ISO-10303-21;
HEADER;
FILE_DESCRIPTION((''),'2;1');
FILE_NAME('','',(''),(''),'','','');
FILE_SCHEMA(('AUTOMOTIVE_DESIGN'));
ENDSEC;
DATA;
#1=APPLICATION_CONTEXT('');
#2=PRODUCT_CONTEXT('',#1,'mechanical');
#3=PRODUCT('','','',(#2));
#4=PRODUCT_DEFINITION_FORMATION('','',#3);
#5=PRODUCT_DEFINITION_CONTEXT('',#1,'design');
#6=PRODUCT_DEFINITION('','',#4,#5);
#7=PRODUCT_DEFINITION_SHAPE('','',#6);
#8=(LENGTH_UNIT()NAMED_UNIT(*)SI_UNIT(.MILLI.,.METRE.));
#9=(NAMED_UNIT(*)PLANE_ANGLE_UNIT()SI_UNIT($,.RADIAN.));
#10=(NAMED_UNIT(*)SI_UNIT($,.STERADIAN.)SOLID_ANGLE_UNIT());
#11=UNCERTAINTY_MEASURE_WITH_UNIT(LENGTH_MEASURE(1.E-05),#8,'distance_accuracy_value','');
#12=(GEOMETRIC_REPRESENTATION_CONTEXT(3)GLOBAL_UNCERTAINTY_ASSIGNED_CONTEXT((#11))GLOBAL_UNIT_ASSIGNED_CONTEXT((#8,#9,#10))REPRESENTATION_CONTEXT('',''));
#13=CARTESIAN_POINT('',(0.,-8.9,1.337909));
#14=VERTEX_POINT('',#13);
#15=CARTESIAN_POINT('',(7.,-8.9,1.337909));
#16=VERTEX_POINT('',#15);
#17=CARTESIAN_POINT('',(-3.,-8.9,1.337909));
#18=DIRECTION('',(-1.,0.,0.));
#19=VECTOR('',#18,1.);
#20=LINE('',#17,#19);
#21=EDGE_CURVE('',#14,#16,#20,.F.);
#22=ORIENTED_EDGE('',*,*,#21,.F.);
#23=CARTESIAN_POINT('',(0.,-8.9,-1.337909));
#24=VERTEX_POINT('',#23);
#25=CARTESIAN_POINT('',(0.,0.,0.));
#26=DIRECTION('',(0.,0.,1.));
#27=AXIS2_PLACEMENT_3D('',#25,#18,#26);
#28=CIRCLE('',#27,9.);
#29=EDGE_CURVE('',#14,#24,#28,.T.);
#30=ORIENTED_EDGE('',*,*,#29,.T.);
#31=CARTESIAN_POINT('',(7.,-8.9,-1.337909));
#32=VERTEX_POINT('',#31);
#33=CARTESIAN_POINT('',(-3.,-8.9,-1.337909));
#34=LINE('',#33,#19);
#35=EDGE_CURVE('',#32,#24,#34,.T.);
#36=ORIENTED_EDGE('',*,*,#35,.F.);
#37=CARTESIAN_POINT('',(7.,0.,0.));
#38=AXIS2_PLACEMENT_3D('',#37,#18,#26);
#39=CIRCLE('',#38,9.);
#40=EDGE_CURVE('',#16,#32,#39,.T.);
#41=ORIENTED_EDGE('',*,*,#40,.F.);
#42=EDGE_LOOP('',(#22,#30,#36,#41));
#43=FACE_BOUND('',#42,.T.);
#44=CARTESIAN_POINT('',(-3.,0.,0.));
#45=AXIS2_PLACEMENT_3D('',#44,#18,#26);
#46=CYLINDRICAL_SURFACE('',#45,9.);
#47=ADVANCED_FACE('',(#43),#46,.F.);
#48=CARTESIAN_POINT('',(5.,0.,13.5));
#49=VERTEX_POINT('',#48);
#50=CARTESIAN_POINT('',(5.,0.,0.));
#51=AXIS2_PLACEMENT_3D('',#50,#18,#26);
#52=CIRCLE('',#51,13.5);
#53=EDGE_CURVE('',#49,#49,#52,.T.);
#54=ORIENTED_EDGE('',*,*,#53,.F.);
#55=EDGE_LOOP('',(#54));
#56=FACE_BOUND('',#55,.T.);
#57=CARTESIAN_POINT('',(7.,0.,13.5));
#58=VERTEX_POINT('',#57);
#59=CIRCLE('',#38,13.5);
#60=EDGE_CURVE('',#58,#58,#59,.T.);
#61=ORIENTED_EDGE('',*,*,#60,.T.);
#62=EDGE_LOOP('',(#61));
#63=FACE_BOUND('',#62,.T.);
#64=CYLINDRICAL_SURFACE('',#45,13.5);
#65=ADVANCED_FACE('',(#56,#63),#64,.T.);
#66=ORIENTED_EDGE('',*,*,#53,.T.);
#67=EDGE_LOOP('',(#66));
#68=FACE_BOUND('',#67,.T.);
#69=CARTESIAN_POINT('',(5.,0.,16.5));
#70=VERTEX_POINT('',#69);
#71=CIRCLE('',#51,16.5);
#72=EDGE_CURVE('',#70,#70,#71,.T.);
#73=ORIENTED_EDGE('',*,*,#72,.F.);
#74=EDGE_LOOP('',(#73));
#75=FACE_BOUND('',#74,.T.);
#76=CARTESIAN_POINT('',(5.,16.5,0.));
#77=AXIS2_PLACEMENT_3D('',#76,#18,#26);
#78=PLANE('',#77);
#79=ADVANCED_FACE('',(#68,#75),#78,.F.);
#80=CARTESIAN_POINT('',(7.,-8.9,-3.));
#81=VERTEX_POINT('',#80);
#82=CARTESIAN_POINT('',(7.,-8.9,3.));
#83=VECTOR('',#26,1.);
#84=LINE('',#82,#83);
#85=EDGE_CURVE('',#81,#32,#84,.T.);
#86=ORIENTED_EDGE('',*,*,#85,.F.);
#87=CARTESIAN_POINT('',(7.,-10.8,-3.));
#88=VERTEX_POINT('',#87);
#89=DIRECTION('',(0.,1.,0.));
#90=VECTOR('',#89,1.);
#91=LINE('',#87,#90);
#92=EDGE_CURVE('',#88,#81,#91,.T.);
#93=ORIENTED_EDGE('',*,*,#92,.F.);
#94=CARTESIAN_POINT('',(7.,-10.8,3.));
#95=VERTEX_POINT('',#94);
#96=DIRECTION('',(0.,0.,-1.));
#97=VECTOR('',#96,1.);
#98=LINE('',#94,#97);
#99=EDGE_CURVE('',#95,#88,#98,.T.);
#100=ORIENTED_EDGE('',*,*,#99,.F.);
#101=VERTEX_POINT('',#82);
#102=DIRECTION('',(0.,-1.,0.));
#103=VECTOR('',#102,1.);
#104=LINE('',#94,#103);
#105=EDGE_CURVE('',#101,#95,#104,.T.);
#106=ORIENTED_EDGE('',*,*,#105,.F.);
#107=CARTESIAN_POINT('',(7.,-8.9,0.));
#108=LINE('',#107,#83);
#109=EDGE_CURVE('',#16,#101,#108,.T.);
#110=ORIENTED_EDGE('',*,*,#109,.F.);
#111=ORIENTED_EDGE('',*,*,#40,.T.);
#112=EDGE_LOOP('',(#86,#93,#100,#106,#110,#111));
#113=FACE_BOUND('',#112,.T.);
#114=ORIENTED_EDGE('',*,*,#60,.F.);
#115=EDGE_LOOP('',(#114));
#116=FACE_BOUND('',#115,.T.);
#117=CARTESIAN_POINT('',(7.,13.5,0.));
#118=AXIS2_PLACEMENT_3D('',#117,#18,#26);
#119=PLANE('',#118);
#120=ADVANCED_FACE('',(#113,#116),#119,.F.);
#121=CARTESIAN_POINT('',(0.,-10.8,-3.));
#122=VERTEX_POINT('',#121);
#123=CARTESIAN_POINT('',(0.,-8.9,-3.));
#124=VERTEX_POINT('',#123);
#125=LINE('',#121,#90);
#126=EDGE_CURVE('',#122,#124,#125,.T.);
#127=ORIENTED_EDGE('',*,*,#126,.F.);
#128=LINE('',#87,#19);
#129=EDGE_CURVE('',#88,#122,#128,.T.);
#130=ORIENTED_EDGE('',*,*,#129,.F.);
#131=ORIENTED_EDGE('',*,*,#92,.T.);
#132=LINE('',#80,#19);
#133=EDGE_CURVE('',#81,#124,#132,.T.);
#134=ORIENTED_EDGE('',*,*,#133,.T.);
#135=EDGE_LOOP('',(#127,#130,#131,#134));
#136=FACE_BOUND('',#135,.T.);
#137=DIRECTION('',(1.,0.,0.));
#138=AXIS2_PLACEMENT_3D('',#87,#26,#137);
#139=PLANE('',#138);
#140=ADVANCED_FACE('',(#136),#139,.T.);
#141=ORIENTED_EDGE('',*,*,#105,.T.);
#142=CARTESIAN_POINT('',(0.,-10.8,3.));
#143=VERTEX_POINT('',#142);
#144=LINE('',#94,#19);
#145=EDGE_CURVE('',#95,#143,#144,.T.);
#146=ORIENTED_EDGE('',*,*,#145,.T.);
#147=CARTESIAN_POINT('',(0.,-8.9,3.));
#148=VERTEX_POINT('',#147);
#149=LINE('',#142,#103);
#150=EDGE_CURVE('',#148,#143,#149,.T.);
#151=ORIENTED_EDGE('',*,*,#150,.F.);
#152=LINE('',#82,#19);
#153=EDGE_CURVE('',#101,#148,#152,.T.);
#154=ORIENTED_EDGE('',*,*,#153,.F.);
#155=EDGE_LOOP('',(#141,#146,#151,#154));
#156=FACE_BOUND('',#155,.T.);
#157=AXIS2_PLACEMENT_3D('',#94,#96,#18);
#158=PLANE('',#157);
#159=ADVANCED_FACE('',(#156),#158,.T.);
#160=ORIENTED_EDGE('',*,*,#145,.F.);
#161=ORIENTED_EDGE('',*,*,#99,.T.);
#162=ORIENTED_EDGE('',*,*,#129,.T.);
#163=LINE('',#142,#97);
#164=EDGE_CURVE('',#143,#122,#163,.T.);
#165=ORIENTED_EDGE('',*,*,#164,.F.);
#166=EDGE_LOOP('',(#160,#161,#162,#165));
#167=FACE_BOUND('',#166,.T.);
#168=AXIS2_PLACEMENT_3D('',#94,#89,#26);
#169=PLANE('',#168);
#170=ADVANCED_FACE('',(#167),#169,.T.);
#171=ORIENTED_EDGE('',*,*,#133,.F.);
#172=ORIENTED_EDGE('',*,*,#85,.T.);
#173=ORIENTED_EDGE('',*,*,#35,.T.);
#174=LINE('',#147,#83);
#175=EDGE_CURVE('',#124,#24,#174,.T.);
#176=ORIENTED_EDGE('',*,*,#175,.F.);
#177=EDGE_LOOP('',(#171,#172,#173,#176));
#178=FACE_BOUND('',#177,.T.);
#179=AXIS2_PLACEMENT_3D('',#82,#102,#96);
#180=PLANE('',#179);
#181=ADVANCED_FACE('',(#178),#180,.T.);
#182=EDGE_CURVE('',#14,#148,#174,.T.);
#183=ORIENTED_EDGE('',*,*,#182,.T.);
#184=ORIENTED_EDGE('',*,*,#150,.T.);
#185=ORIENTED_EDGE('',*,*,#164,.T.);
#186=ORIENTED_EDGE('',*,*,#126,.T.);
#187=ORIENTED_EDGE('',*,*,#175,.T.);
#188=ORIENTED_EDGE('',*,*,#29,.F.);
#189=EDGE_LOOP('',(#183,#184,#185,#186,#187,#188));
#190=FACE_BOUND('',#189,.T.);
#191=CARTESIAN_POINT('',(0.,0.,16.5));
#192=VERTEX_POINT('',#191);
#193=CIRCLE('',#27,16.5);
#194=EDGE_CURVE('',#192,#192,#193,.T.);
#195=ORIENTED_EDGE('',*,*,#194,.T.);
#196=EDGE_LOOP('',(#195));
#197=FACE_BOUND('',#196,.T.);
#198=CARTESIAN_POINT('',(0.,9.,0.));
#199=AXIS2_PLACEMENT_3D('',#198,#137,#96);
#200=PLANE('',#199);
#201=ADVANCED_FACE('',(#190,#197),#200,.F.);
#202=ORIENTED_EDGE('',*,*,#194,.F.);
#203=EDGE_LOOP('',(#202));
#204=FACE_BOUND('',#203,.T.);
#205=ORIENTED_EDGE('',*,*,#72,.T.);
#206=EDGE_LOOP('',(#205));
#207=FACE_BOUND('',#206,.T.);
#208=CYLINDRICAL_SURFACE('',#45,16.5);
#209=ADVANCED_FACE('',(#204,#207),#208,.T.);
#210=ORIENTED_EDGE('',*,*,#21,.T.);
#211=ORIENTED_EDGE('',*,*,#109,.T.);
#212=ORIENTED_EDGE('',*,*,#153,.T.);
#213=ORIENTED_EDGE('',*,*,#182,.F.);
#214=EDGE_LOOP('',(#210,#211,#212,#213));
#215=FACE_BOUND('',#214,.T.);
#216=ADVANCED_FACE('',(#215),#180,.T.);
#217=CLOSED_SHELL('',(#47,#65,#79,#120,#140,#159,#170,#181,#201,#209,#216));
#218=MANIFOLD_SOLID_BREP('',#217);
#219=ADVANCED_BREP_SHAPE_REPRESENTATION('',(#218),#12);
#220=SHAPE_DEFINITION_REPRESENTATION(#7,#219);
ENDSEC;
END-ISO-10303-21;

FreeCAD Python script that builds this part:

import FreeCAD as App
import Part
import Sketcher
from FreeCAD import Vector
Q = App.Units.Quantity

doc = App.newDocument("Part")
body = doc.addObject("PartDesign::Body", "Body")

# Sketch on XY plane
sketch1 = body.newObject("Sketcher::SketchObject", "Sketch")
sketch1.AttachmentSupport = (doc.getObject("XY_Plane"), [""])
sketch1.MapMode = "FlatFace"
sketch1.addGeometry(Part.LineSegment(Vector(0, 16.5, 0), Vector(0, 9, 0)), False)
sketch1.addGeometry(Part.LineSegment(Vector(0, 9, 0), Vector(7, 9, 0)), False)
sketch1.addGeometry(Part.LineSegment(Vector(7, 9, 0), Vector(7, 13.5, 0)), False)
sketch1.addGeometry(Part.LineSegment(Vector(7, 13.5, 0), Vector(5, 13.5, 0)), False)
sketch1.addGeometry(Part.LineSegment(Vector(5, 13.5, 0), Vector(5, 16.5, 0)), False)
sketch1.addGeometry(Part.LineSegment(Vector(5, 16.5, 0), Vector(0, 16.5, 0)), False)
sketch1.addConstraint(Sketcher.Constraint("Coincident", 0, 2, 1, 1))
sketch1.addConstraint(Sketcher.Constraint("Coincident", 1, 2, 2, 1))
sketch1.addConstraint(Sketcher.Constraint("Coincident", 2, 2, 3, 1))
sketch1.addConstraint(Sketcher.Constraint("Coincident", 3, 2, 4, 1))
sketch1.addConstraint(Sketcher.Constraint("Coincident", 4, 2, 5, 1))
sketch1.addConstraint(Sketcher.Constraint("Coincident", 5, 2, 0, 1))
sketch1.addConstraint(Sketcher.Constraint("Vertical", 0))
sketch1.addConstraint(Sketcher.Constraint("Horizontal", 1))
sketch1.addConstraint(Sketcher.Constraint("Vertical", 2))
sketch1.addConstraint(Sketcher.Constraint("Horizontal", 3))
sketch1.addConstraint(Sketcher.Constraint("Vertical", 4))
sketch1.addConstraint(Sketcher.Constraint("Horizontal", 5))
sketch1.addConstraint(Sketcher.Constraint("PointOnObject", 0, 2, -2))
sketch1.addConstraint(Sketcher.Constraint("DistanceX", 1, 1, 1, 2, Q("7 mm")))
sketch1.addConstraint(Sketcher.Constraint("DistanceX", 3, 2, 3, 1, Q("2 mm")))
sketch1.addConstraint(Sketcher.Constraint("DistanceY", 4, 1, 4, 2, Q("3 mm")))
sketch1.addConstraint(Sketcher.Constraint("DistanceY", 0, 2, 0, 1, Q("7.5 mm")))
sketch1.addConstraint(Sketcher.Constraint("DistanceY", -1, 1, 0, 2, Q("9 mm")))
revolution = body.newObject("PartDesign::Revolution", "Revolution")
revolution.Profile = sketch1
revolution.ReferenceAxis = (sketch1, ["H_Axis"])
revolution.Angle = 360

# Sketch on YZ plane
sketch2 = body.newObject("Sketcher::SketchObject", "Sketch001")
sketch2.AttachmentSupport = (doc.getObject("YZ_Plane"), [""])
sketch2.MapMode = "FlatFace"
sketch2.addGeometry(Part.LineSegment(Vector(-8.9, 3, 0), Vector(-10.8, 3, 0)), False)
sketch2.addGeometry(Part.LineSegment(Vector(-10.8, 3, 0), Vector(-10.8, -3, 0)), False)
sketch2.addGeometry(Part.LineSegment(Vector(-10.8, -3, 0), Vector(-8.9, -3, 0)), False)
sketch2.addGeometry(Part.LineSegment(Vector(-8.9, -3, 0), Vector(-8.9, 3, 0)), False)
sketch2.addConstraint(Sketcher.Constraint("Coincident", 0, 2, 1, 1))
sketch2.addConstraint(Sketcher.Constraint("Coincident", 1, 2, 2, 1))
sketch2.addConstraint(Sketcher.Constraint("Coincident", 2, 2, 3, 1))
sketch2.addConstraint(Sketcher.Constraint("Coincident", 3, 2, 0, 1))
sketch2.addConstraint(Sketcher.Constraint("Horizontal", 0))
sketch2.addConstraint(Sketcher.Constraint("Vertical", 1))
sketch2.addConstraint(Sketcher.Constraint("Horizontal", 2))
sketch2.addConstraint(Sketcher.Constraint("Vertical", 3))
sketch2.addConstraint(Sketcher.Constraint("DistanceY", 1, 2, 1, 1, Q("6 mm")))
sketch2.addConstraint(Sketcher.Constraint("DistanceX", 0, 2, 0, 1, Q("1.9 mm")))
sketch2.addConstraint(Sketcher.Constraint("DistanceY", -1, 1, 0, 2, Q("3 mm")))
sketch2.addConstraint(Sketcher.Constraint("DistanceX", 0, 2, -1, 1, Q("10.8 mm")))
pocket1 = body.newObject("PartDesign::Pocket", "Pocket")
pocket1.Profile = sketch2
pocket1.Type = "ThroughAll"
pocket1.Reversed = True

doc.recompute()
